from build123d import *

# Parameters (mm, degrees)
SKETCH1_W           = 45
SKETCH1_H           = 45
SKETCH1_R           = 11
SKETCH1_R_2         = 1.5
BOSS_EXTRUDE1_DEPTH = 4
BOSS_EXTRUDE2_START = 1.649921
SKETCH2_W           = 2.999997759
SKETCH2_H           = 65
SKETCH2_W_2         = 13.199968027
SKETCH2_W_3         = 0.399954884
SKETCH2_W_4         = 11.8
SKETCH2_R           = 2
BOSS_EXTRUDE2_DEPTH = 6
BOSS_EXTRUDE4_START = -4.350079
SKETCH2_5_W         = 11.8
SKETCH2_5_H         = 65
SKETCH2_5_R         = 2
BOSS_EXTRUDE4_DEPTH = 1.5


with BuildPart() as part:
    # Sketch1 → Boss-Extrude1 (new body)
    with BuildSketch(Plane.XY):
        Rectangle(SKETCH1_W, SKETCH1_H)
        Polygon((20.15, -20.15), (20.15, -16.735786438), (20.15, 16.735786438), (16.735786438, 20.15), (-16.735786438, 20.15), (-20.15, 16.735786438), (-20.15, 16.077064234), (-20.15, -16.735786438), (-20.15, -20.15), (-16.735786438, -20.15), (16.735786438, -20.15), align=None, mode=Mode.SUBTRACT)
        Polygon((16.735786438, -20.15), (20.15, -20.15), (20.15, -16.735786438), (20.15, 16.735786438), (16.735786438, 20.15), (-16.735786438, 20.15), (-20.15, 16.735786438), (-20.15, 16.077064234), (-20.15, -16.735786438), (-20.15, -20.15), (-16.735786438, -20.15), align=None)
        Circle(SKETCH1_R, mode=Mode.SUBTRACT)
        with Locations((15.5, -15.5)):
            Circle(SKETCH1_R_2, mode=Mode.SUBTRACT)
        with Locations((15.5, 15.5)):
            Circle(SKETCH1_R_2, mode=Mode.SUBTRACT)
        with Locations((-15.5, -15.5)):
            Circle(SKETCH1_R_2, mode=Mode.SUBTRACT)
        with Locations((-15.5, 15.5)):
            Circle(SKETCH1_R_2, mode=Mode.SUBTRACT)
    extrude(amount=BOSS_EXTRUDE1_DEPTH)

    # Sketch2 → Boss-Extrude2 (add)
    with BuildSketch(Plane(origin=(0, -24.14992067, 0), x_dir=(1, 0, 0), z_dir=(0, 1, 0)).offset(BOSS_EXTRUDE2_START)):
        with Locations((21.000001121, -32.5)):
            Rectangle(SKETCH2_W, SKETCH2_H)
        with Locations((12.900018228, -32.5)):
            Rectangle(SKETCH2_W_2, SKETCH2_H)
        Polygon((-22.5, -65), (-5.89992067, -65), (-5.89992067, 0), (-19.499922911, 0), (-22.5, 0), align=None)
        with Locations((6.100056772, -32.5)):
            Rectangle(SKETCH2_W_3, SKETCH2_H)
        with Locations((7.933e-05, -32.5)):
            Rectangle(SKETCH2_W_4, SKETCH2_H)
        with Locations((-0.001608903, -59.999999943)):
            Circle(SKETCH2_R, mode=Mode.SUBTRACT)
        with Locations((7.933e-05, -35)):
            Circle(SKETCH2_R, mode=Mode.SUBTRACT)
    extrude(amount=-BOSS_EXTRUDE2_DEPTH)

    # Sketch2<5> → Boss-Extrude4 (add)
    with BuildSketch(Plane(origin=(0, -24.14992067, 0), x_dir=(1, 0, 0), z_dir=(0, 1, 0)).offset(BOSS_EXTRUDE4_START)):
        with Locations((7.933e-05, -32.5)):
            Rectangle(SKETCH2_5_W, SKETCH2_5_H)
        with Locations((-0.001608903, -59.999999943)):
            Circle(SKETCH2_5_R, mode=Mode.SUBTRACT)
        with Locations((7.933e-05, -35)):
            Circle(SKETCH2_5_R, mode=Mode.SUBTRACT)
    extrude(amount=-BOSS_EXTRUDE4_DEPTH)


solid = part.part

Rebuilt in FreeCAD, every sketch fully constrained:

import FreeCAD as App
import Part
import Sketcher
from FreeCAD import Vector


def add_polygon(sketch, points):
    """Adds a closed chain of lines whose ends are joined by coincident constraints."""
    first, n = sketch.GeometryCount, len(points)
    for a, b in zip(points, points[1:] + points[:1]):
        sketch.addGeometry(Part.LineSegment(App.Vector(*a, 0), App.Vector(*b, 0)), False)
    for i in range(n):
        sketch.addConstraint(Sketcher.Constraint("Coincident", first + i, 2, first + (i + 1) % n, 1))

doc = App.newDocument("Part")
params = doc.addObject("Spreadsheet::Sheet", "Params")
for row, (alias, value) in enumerate([
    ("sketch1_diameter", "3 mm"),
    ("sketch1_diameter2", "22 mm"),
    ("sketch1_width", "45 mm"),
    ("pad1_length", "4 mm"),
    ("sketch2_diameter", "4 mm"),
    ("sketch2_width", "45 mm"),
    ("sketch2_height", "65 mm"),
    ("pad2_length", "6 mm"),
    ("sketch3_diameter", "4 mm"),
    ("sketch3_height", "65 mm"),
    ("sketch3_width", "11.8 mm"),
    ("pad3_length", "1.5 mm"),
], start=1):
    params.set(f"A{row}", alias)
    params.set(f"B{row}", "=" + value)
    params.setAlias(f"B{row}", alias)

body = doc.addObject("PartDesign::Body", "Body")

sketch1 = body.newObject("Sketcher::SketchObject", "Sketch")
sketch1.AttachmentSupport = (doc.getObject("XY_Plane"), [""])
sketch1.MapMode = "FlatFace"
add_polygon(sketch1, [(-22.5, 22.5), (-22.5, -22.5), (22.5, -22.5), (22.5, 22.5)])
sketch1.addGeometry(Part.Circle(Vector(-15.5, -15.5, 0), Vector(0, 0, 1), 1.5), False)
sketch1.addGeometry(Part.Circle(Vector(15.5, -15.5, 0), Vector(0, 0, 1), 1.5), False)
sketch1.addGeometry(Part.Circle(Vector(-15.5, 15.5, 0), Vector(0, 0, 1), 1.5), False)
sketch1.addGeometry(Part.Circle(Vector(0, 0, 0), Vector(0, 0, 1), 11), False)
sketch1.addGeometry(Part.Circle(Vector(15.5, 15.5, 0), Vector(0, 0, 1), 1.5), False)
sketch1.addConstraint([
    Sketcher.Constraint("Vertical", 0),
    Sketcher.Constraint("Horizontal", 1),
    Sketcher.Constraint("Vertical", 2),
    Sketcher.Constraint("Horizontal", 3),
    Sketcher.Constraint("Coincident", 7, 3, -1, 1),
    Sketcher.Constraint("Equal", 4, 5),
    Sketcher.Constraint("Equal", 5, 6),
    Sketcher.Constraint("Equal", 6, 8),
    Sketcher.Constraint("Symmetric", 5, 3, 6, 3, -1, 1),
    Sketcher.Constraint("Symmetric", 4, 3, 8, 3, -1, 1),
    Sketcher.Constraint("Symmetric", 0, 2, 2, 2, -1, 1),
    Sketcher.Constraint("Symmetric", 4, 3, 5, 3, -2),
    Sketcher.Constraint("Equal", 3, 0),
    Sketcher.Constraint("Diameter", 4, 3.0),
    Sketcher.Constraint("Diameter", 7, 22.0),
    Sketcher.Constraint("DistanceX", 1, 1, 1, 2, 45.0),
    Sketcher.Constraint("DistanceX", 4, 3, 5, 3, 31.0),
    Sketcher.Constraint("DistanceY", 4, 3, 6, 3, 31.0),
])
sketch1.setExpression("Constraints[17]", "Params.sketch1_diameter")
sketch1.setExpression("Constraints[18]", "Params.sketch1_diameter2")
sketch1.setExpression("Constraints[19]", "Params.sketch1_width")
pad1 = body.newObject("PartDesign::Pad", "Pad")
pad1.Profile = sketch1
pad1.setExpression("Length", "Params.pad1_length")

sketch2 = body.newObject("Sketcher::SketchObject", "Sketch001")
sketch2.AttachmentSupport = (doc.getObject("XZ_Plane"), [""])
sketch2.MapMode = "FlatFace"
sketch2.AttachmentOffset = App.Placement(Vector(0, 0, 22.5), App.Rotation())
add_polygon(sketch2, [(22.5, 65), (22.5, 0), (-22.5, 0), (-22.5, 65)])
sketch2.addGeometry(Part.Circle(Vector(-0.001609, 60, 0), Vector(0, 0, 1), 2), False)
sketch2.addGeometry(Part.Circle(Vector(0.000079, 35, 0), Vector(0, 0, 1), 2), False)
sketch2.addConstraint([
    Sketcher.Constraint("Vertical", 0),
    Sketcher.Constraint("Horizontal", 1),
    Sketcher.Constraint("Vertical", 2),
    Sketcher.Constraint("Horizontal", 3),
    Sketcher.Constraint("Equal", 4, 5),
    Sketcher.Constraint("Symmetric", 0, 2, 1, 2, -1, 1),
    Sketcher.Constraint("Diameter", 4, 4.0),
    Sketcher.Constraint("DistanceX", 1, 2, 1, 1, 45.0),
    Sketcher.Constraint("DistanceY", 0, 2, 0, 1, 65.0),
    Sketcher.Constraint("DistanceY", -1, 1, 4, 3, 60.0),
    Sketcher.Constraint("DistanceY", -1, 1, 5, 3, 35.0),
    Sketcher.Constraint("DistanceX", 4, 3, -1, 1, 0.001609),
    Sketcher.Constraint("DistanceX", 4, 3, 5, 3, 0.001688),
])
sketch2.setExpression("Constraints[10]", "Params.sketch2_diameter")
sketch2.setExpression("Constraints[11]", "Params.sketch2_width")
sketch2.setExpression("Constraints[12]", "Params.sketch2_height")
pad2 = body.newObject("PartDesign::Pad", "Pad001")
pad2.Profile = sketch2
pad2.setExpression("Length", "Params.pad2_length")

sketch3 = body.newObject("Sketcher::SketchObject", "Sketch002")
sketch3.AttachmentSupport = (doc.getObject("XZ_Plane"), [""])
sketch3.MapMode = "FlatFace"
sketch3.AttachmentOffset = App.Placement(Vector(0, 0, 28.5), App.Rotation())
add_polygon(sketch3, [(-5.899921, 0), (-5.899921, 65), (5.900079, 65), (5.900079, 0)])
sketch3.addGeometry(Part.Circle(Vector(-0.001609, 60, 0), Vector(0, 0, 1), 2), False)
sketch3.addGeometry(Part.Circle(Vector(0.000079, 35, 0), Vector(0, 0, 1), 2), False)
sketch3.addConstraint([
    Sketcher.Constraint("Vertical", 0),
    Sketcher.Constraint("Horizontal", 1),
    Sketcher.Constraint("Vertical", 2),
    Sketcher.Constraint("Horizontal", 3),
    Sketcher.Constraint("Equal", 4, 5),
    Sketcher.Constraint("PointOnObject", 2, 2, -1),
    Sketcher.Constraint("Diameter", 4, 4.0),
    Sketcher.Constraint("DistanceY", 0, 1, 0, 2, 65.0),
    Sketcher.Constraint("DistanceX", 1, 1, 1, 2, 11.8),
    Sketcher.Constraint("DistanceY", -1, 1, 4, 3, 60.0),
    Sketcher.Constraint("DistanceY", -1, 1, 5, 3, 35.0),
    Sketcher.Constraint("DistanceX", 0, 2, 5, 3, 5.9),
    Sketcher.Constraint("DistanceX", 4, 3, -1, 1, 0.001609),
    Sketcher.Constraint("DistanceX", 0, 2, -1, 1, 5.899921),
])
sketch3.setExpression("Constraints[10]", "Params.sketch3_diameter")
sketch3.setExpression("Constraints[11]", "Params.sketch3_height")
sketch3.setExpression("Constraints[12]", "Params.sketch3_width")
pad3 = body.newObject("PartDesign::Pad", "Pad002")
pad3.Profile = sketch3
pad3.setExpression("Length", "Params.pad3_length")

doc.recompute()
